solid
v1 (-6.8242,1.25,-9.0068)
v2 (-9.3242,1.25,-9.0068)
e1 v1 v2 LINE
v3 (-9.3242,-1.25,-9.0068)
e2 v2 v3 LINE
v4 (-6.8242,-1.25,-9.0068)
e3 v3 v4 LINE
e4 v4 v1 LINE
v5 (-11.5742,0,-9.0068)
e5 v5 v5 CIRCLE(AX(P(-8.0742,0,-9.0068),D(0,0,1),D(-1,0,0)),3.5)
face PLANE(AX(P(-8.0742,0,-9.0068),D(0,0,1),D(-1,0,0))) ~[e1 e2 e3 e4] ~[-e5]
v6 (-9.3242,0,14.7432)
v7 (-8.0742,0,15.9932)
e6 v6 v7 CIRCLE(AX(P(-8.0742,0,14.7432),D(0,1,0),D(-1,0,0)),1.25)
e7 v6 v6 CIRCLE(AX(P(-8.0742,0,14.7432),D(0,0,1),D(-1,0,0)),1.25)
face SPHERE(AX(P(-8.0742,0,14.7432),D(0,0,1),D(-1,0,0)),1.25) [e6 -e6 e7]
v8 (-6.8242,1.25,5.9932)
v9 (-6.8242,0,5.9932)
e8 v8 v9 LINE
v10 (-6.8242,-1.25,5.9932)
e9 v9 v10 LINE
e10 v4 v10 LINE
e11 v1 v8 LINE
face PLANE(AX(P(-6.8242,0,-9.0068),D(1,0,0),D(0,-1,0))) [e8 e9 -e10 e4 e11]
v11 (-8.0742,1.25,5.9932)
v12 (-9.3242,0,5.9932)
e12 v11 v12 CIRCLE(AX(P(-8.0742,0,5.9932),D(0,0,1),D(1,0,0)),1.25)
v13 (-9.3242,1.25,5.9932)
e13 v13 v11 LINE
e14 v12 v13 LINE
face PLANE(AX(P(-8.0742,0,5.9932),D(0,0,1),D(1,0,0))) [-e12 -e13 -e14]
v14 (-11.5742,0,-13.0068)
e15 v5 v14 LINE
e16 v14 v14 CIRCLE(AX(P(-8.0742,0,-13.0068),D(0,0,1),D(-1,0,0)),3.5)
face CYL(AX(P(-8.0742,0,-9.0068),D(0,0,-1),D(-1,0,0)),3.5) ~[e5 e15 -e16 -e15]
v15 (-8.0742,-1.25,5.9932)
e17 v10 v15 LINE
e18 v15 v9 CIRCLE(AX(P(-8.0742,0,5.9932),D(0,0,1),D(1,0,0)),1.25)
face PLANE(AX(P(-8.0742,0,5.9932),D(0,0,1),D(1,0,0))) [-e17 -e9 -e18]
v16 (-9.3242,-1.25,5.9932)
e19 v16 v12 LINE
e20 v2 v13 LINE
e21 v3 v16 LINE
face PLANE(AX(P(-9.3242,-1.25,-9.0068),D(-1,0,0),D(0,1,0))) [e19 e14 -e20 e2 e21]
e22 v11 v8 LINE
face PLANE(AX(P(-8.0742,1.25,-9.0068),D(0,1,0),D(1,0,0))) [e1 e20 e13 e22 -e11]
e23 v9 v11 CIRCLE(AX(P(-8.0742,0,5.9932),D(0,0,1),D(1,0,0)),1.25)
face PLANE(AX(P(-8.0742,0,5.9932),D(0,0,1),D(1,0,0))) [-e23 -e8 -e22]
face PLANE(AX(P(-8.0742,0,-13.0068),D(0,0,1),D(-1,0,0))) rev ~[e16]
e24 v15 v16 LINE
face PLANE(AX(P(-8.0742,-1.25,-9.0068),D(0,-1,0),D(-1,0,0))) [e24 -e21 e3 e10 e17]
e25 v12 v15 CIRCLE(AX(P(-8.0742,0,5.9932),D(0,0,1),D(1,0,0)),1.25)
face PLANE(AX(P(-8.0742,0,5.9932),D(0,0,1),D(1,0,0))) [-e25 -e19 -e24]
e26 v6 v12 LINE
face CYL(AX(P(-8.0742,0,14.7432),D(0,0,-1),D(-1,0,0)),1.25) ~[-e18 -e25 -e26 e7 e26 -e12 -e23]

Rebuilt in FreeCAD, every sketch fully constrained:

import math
import FreeCAD as App
import Part
import Sketcher

V = App.Vector

doc = App.newDocument("Part")
body = doc.addObject("PartDesign::Body", "Body")

sketch1 = body.newObject("Sketcher::SketchObject", "Sketch")
sketch1.AttachmentSupport = (doc.getObject("XZ_Plane"), [""])
sketch1.MapMode = "FlatFace"
sketch1.addGeometry(Part.LineSegment(V(-8.1, 16, 0), V(-8.1, -13, 0)), False)
sketch1.addGeometry(Part.LineSegment(V(-8.1, -13, 0), V(-11.6, -13, 0)), False)
sketch1.addGeometry(Part.LineSegment(V(-11.6, -13, 0), V(-11.6, -9, 0)), False)
sketch1.addGeometry(Part.LineSegment(V(-11.6, -9, 0), V(-9.3, -9, 0)), False)
sketch1.addGeometry(Part.LineSegment(V(-9.3, -9, 0), V(-9.3, 14.7, 0)), False)
sketch1.addGeometry(Part.ArcOfCircle(Part.Circle(V(-8.1, 14.7, 0), V(0, 0, 1), 1.2), math.radians(90), math.radians(180)), False)
sketch1.addGeometry(Part.LineSegment(V(-8.1, -13, 0), V(-8.1, 16, 0)), True)
sketch1.addConstraint(Sketcher.Constraint("Coincident", 0, 2, 1, 1))
sketch1.addConstraint(Sketcher.Constraint("Coincident", 1, 2, 2, 1))
sketch1.addConstraint(Sketcher.Constraint("Coincident", 2, 2, 3, 1))
sketch1.addConstraint(Sketcher.Constraint("Coincident", 3, 2, 4, 1))
sketch1.addConstraint(Sketcher.Constraint("Tangent", 4, 2, 5, 2))
sketch1.addConstraint(Sketcher.Constraint("Coincident", 5, 1, 0, 1))
sketch1.addConstraint(Sketcher.Constraint("Vertical", 0))
sketch1.addConstraint(Sketcher.Constraint("Horizontal", 1))
sketch1.addConstraint(Sketcher.Constraint("Vertical", 2))
sketch1.addConstraint(Sketcher.Constraint("Horizontal", 3))
sketch1.addConstraint(Sketcher.Constraint("Vertical", 4))
sketch1.addConstraint(Sketcher.Constraint("Vertical", 6))
sketch1.addConstraint(Sketcher.Constraint("Coincident", 6, 1, 0, 2))
sketch1.addConstraint(Sketcher.Constraint("Vertical", 5, 3, 0, 2))
sketch1.addConstraint(Sketcher.Constraint("Equal", 0, 6))
sketch1.addConstraint(Sketcher.Constraint("DistanceY", 0, 2, 0, 1, 29.0))
sketch1.addConstraint(Sketcher.Constraint("DistanceY", 2, 1, 2, 2, 4.0))
sketch1.addConstraint(Sketcher.Constraint("Radius", 5, 1.25))
sketch1.addConstraint(Sketcher.Constraint("DistanceX", 1, 2, 1, 1, 3.5))
sketch1.addConstraint(Sketcher.Constraint("DistanceX", 5, 3, -1, 1, 8.0742))
sketch1.addConstraint(Sketcher.Constraint("DistanceY", -1, 1, 5, 3, 14.7432))
revolution = body.newObject("PartDesign::Revolution", "Revolution")
revolution.Profile = sketch1
revolution.ReferenceAxis = (sketch1, ["Axis0"])
revolution.Angle = 360

sketch2 = body.newObject("Sketcher::SketchObject", "Sketch001")
sketch2.AttachmentSupport = (doc.getObject("XY_Plane"), [""])
sketch2.MapMode = "FlatFace"
sketch2.AttachmentOffset = App.Placement(V(0, 0, -9.0068), App.Rotation())
sketch2.addGeometry(Part.LineSegment(V(-6.8, -1.2, 0), V(-6.8, 0, 0)), False)
sketch2.addGeometry(Part.ArcOfCircle(Part.Circle(V(-8.1, 0, 0), V(0, 0, 1), 1.2), math.radians(-90), math.radians(0)), False)
sketch2.addGeometry(Part.LineSegment(V(-8.1, -1.2, 0), V(-6.8, -1.2, 0)), False)
sketch2.addGeometry(Part.ArcOfCircle(Part.Circle(V(-8.1, 0, 0), V(0, 0, 1), 1.2), math.radians(0), math.radians(90)), False)
sketch2.addGeometry(Part.LineSegment(V(-6.8, 0, 0), V(-6.8, 1.2, 0)), False)
sketch2.addGeometry(Part.LineSegment(V(-6.8, 1.2, 0), V(-8.1, 1.2, 0)), False)
sketch2.addGeometry(Part.ArcOfCircle(Part.Circle(V(-8.1, 0, 0), V(0, 0, 1), 1.2), math.radians(90), math.radians(180)), False)
sketch2.addGeometry(Part.LineSegment(V(-8.1, 1.2, 0), V(-9.3, 1.2, 0)), False)
sketch2.addGeometry(Part.LineSegment(V(-9.3, 1.2, 0), V(-9.3, 0, 0)), False)
sketch2.addGeometry(Part.LineSegment(V(-9.3, -1.2, 0), V(-8.1, -1.2, 0)), False)
sketch2.addGeometry(Part.ArcOfCircle(Part.Circle(V(-8.1, 0, 0), V(0, 0, 1), 1.2), math.radians(180), math.radians(270)), False)
sketch2.addGeometry(Part.LineSegment(V(-9.3, 0, 0), V(-9.3, -1.2, 0)), False)
sketch2.addConstraint(Sketcher.Constraint("Tangent", 0, 2, 1, 2))
sketch2.addConstraint(Sketcher.Constraint("Tangent", 1, 1, 2, 1))
sketch2.addConstraint(Sketcher.Constraint("Coincident", 2, 2, 0, 1))
sketch2.addConstraint(Sketcher.Constraint("Tangent", 3, 1, 4, 1))
sketch2.addConstraint(Sketcher.Constraint("Coincident", 4, 2, 5, 1))
sketch2.addConstraint(Sketcher.Constraint("Tangent", 5, 2, 3, 2))
sketch2.addConstraint(Sketcher.Constraint("Tangent", 6, 1, 7, 1))
sketch2.addConstraint(Sketcher.Constraint("Coincident", 7, 2, 8, 1))
sketch2.addConstraint(Sketcher.Constraint("Tangent", 8, 2, 6, 2))
sketch2.addConstraint(Sketcher.Constraint("Tangent", 9, 2, 10, 2))
sketch2.addConstraint(Sketcher.Constraint("Tangent", 10, 1, 11, 1))
sketch2.addConstraint(Sketcher.Constraint("Coincident", 11, 2, 9, 1))
sketch2.addConstraint(Sketcher.Constraint("Vertical", 0))
sketch2.addConstraint(Sketcher.Constraint("Horizontal", 2))
sketch2.addConstraint(Sketcher.Constraint("Vertical", 4))
sketch2.addConstraint(Sketcher.Constraint("Horizontal", 5))
sketch2.addConstraint(Sketcher.Constraint("Horizontal", 7))
sketch2.addConstraint(Sketcher.Constraint("Vertical", 8))
sketch2.addConstraint(Sketcher.Constraint("Horizontal", 9))
sketch2.addConstraint(Sketcher.Constraint("Vertical", 11))
sketch2.addConstraint(Sketcher.Constraint("Coincident", 3, 3, 1, 3))
sketch2.addConstraint(Sketcher.Constraint("Coincident", 6, 3, 1, 3))
sketch2.addConstraint(Sketcher.Constraint("Coincident", 10, 3, 1, 3))
sketch2.addConstraint(Sketcher.Constraint("Equal", 1, 3))
sketch2.addConstraint(Sketcher.Constraint("Equal", 3, 6))
sketch2.addConstraint(Sketcher.Constraint("Equal", 6, 10))
sketch2.addConstraint(Sketcher.Constraint("PointOnObject", 1, 3, -1))
sketch2.addConstraint(Sketcher.Constraint("Radius", 1, 1.25))
sketch2.addConstraint(Sketcher.Constraint("DistanceX", 1, 3, -1, 1, 8.0742))
pad1 = body.newObject("PartDesign::Pad", "Pad")
pad1.Profile = sketch2
pad1.Length = 15

doc.recompute()
